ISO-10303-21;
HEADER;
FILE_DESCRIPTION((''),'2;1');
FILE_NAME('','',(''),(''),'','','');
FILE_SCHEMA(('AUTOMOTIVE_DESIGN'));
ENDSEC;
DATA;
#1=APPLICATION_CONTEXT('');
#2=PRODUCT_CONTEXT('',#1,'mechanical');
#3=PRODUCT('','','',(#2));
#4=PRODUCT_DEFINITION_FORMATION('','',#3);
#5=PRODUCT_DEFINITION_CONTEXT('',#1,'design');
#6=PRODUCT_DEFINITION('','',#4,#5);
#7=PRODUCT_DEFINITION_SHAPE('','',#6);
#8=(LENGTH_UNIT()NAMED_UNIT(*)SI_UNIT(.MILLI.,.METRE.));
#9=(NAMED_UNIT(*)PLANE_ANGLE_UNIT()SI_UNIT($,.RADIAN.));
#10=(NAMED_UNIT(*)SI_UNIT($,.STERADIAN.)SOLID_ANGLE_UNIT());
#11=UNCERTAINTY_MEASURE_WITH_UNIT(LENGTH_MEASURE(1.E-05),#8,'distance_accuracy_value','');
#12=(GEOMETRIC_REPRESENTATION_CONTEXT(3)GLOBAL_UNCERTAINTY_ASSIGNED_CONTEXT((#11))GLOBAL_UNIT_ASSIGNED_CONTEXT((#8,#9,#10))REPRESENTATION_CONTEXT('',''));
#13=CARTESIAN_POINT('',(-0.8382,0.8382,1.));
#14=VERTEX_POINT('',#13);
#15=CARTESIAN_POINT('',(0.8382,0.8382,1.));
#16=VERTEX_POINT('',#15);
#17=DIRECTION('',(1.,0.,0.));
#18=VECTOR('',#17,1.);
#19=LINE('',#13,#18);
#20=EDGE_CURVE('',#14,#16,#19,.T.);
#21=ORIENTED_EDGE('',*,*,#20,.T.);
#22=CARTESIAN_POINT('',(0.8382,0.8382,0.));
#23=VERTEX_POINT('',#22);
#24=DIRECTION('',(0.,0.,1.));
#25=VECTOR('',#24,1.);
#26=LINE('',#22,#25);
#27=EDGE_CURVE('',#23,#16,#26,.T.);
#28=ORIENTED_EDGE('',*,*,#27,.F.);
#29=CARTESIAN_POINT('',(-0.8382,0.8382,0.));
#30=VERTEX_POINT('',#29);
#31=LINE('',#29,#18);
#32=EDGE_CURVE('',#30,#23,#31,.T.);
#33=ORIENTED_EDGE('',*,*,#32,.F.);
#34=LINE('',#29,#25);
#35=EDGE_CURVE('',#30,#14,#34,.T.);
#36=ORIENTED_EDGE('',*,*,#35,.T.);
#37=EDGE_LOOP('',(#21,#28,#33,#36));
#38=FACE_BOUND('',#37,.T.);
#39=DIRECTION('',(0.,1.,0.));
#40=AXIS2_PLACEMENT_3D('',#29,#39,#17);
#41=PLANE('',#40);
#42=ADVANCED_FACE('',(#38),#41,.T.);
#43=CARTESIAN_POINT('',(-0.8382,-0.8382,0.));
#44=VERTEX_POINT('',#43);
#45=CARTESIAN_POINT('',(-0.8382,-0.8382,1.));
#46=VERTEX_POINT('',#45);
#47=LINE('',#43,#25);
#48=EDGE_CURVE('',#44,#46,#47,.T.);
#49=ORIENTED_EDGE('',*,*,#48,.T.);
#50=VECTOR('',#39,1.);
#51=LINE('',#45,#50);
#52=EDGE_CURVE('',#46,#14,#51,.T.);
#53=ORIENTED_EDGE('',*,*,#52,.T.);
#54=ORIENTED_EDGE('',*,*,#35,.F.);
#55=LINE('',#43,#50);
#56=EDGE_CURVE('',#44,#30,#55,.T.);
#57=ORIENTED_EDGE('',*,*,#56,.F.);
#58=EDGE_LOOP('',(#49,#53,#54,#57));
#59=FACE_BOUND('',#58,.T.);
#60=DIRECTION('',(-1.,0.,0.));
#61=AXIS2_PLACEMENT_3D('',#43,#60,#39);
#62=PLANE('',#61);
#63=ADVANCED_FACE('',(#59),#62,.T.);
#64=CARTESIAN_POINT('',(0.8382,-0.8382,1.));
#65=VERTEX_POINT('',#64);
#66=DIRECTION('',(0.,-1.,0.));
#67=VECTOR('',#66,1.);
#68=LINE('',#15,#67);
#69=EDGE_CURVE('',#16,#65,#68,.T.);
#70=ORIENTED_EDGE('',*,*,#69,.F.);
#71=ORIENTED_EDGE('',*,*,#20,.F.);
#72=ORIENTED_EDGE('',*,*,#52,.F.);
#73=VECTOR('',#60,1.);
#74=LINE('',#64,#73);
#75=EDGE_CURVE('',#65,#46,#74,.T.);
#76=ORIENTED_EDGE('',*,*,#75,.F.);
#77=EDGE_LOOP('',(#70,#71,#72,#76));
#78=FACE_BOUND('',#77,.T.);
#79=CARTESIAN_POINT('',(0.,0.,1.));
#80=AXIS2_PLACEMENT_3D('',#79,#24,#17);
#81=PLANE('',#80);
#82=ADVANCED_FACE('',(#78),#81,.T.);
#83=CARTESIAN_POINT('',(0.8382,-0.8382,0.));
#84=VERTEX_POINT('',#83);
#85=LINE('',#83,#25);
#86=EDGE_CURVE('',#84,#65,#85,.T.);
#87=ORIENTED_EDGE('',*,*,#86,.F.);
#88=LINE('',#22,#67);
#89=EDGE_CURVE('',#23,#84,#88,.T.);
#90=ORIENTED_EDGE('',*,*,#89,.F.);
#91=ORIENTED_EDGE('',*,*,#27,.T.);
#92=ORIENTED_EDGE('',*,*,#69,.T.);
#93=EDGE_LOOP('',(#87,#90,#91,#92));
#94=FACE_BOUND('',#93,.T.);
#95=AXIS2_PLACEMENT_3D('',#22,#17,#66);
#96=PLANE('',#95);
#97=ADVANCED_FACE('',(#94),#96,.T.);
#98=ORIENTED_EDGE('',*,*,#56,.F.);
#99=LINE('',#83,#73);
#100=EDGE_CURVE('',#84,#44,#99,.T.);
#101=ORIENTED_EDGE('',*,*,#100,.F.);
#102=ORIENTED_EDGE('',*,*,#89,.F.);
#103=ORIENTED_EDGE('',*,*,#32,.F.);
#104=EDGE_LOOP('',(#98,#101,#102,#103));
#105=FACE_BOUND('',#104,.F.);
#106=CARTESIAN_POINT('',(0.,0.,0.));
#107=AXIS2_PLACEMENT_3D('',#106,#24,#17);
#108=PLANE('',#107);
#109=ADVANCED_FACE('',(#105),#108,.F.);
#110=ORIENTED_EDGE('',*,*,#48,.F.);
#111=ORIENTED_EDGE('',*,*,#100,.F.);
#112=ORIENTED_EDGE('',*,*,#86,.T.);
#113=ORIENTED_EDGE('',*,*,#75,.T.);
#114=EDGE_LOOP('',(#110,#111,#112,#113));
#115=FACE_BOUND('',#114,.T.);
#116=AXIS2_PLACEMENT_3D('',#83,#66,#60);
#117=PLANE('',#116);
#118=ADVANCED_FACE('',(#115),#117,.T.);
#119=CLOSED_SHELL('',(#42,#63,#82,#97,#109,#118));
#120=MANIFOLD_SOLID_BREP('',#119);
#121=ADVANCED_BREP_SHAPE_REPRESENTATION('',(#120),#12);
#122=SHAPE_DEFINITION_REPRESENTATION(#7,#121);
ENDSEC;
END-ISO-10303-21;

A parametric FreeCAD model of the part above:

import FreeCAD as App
import Part
import Sketcher


def add_polygon(sketch, points):
    """Adds a closed chain of lines whose ends are joined by coincident constraints."""
    first, n = sketch.GeometryCount, len(points)
    for a, b in zip(points, points[1:] + points[:1]):
        sketch.addGeometry(Part.LineSegment(App.Vector(*a, 0), App.Vector(*b, 0)), False)
    for i in range(n):
        sketch.addConstraint(Sketcher.Constraint("Coincident", first + i, 2, first + (i + 1) % n, 1))

doc = App.newDocument("Part")
body = doc.addObject("PartDesign::Body", "Body")

# Sketch on XY plane
sketch1 = body.newObject("Sketcher::SketchObject", "Sketch")
sketch1.AttachmentSupport = (doc.getObject("XY_Plane"), [""])
sketch1.MapMode = "FlatFace"
add_polygon(sketch1, [(0.8, 0.8), (-0.8, 0.8), (-0.8, -0.8), (0.8, -0.8)])  # lines 0-3
sketch1.addConstraint([
    Sketcher.Constraint("Horizontal", 0),
    Sketcher.Constraint("Vertical", 1),
    Sketcher.Constraint("Horizontal", 2),
    Sketcher.Constraint("Vertical", 3),
    Sketcher.Constraint("Symmetric", 0, 2, 2, 2, -1, 1),
    Sketcher.Constraint("Equal", 2, 1),
    Sketcher.Constraint("DistanceX", 0, 2, 0, 1, 1.6764),
])
pad1 = body.newObject("PartDesign::Pad", "Pad")
pad1.Profile = sketch1
pad1.Length = 1

doc.recompute()
